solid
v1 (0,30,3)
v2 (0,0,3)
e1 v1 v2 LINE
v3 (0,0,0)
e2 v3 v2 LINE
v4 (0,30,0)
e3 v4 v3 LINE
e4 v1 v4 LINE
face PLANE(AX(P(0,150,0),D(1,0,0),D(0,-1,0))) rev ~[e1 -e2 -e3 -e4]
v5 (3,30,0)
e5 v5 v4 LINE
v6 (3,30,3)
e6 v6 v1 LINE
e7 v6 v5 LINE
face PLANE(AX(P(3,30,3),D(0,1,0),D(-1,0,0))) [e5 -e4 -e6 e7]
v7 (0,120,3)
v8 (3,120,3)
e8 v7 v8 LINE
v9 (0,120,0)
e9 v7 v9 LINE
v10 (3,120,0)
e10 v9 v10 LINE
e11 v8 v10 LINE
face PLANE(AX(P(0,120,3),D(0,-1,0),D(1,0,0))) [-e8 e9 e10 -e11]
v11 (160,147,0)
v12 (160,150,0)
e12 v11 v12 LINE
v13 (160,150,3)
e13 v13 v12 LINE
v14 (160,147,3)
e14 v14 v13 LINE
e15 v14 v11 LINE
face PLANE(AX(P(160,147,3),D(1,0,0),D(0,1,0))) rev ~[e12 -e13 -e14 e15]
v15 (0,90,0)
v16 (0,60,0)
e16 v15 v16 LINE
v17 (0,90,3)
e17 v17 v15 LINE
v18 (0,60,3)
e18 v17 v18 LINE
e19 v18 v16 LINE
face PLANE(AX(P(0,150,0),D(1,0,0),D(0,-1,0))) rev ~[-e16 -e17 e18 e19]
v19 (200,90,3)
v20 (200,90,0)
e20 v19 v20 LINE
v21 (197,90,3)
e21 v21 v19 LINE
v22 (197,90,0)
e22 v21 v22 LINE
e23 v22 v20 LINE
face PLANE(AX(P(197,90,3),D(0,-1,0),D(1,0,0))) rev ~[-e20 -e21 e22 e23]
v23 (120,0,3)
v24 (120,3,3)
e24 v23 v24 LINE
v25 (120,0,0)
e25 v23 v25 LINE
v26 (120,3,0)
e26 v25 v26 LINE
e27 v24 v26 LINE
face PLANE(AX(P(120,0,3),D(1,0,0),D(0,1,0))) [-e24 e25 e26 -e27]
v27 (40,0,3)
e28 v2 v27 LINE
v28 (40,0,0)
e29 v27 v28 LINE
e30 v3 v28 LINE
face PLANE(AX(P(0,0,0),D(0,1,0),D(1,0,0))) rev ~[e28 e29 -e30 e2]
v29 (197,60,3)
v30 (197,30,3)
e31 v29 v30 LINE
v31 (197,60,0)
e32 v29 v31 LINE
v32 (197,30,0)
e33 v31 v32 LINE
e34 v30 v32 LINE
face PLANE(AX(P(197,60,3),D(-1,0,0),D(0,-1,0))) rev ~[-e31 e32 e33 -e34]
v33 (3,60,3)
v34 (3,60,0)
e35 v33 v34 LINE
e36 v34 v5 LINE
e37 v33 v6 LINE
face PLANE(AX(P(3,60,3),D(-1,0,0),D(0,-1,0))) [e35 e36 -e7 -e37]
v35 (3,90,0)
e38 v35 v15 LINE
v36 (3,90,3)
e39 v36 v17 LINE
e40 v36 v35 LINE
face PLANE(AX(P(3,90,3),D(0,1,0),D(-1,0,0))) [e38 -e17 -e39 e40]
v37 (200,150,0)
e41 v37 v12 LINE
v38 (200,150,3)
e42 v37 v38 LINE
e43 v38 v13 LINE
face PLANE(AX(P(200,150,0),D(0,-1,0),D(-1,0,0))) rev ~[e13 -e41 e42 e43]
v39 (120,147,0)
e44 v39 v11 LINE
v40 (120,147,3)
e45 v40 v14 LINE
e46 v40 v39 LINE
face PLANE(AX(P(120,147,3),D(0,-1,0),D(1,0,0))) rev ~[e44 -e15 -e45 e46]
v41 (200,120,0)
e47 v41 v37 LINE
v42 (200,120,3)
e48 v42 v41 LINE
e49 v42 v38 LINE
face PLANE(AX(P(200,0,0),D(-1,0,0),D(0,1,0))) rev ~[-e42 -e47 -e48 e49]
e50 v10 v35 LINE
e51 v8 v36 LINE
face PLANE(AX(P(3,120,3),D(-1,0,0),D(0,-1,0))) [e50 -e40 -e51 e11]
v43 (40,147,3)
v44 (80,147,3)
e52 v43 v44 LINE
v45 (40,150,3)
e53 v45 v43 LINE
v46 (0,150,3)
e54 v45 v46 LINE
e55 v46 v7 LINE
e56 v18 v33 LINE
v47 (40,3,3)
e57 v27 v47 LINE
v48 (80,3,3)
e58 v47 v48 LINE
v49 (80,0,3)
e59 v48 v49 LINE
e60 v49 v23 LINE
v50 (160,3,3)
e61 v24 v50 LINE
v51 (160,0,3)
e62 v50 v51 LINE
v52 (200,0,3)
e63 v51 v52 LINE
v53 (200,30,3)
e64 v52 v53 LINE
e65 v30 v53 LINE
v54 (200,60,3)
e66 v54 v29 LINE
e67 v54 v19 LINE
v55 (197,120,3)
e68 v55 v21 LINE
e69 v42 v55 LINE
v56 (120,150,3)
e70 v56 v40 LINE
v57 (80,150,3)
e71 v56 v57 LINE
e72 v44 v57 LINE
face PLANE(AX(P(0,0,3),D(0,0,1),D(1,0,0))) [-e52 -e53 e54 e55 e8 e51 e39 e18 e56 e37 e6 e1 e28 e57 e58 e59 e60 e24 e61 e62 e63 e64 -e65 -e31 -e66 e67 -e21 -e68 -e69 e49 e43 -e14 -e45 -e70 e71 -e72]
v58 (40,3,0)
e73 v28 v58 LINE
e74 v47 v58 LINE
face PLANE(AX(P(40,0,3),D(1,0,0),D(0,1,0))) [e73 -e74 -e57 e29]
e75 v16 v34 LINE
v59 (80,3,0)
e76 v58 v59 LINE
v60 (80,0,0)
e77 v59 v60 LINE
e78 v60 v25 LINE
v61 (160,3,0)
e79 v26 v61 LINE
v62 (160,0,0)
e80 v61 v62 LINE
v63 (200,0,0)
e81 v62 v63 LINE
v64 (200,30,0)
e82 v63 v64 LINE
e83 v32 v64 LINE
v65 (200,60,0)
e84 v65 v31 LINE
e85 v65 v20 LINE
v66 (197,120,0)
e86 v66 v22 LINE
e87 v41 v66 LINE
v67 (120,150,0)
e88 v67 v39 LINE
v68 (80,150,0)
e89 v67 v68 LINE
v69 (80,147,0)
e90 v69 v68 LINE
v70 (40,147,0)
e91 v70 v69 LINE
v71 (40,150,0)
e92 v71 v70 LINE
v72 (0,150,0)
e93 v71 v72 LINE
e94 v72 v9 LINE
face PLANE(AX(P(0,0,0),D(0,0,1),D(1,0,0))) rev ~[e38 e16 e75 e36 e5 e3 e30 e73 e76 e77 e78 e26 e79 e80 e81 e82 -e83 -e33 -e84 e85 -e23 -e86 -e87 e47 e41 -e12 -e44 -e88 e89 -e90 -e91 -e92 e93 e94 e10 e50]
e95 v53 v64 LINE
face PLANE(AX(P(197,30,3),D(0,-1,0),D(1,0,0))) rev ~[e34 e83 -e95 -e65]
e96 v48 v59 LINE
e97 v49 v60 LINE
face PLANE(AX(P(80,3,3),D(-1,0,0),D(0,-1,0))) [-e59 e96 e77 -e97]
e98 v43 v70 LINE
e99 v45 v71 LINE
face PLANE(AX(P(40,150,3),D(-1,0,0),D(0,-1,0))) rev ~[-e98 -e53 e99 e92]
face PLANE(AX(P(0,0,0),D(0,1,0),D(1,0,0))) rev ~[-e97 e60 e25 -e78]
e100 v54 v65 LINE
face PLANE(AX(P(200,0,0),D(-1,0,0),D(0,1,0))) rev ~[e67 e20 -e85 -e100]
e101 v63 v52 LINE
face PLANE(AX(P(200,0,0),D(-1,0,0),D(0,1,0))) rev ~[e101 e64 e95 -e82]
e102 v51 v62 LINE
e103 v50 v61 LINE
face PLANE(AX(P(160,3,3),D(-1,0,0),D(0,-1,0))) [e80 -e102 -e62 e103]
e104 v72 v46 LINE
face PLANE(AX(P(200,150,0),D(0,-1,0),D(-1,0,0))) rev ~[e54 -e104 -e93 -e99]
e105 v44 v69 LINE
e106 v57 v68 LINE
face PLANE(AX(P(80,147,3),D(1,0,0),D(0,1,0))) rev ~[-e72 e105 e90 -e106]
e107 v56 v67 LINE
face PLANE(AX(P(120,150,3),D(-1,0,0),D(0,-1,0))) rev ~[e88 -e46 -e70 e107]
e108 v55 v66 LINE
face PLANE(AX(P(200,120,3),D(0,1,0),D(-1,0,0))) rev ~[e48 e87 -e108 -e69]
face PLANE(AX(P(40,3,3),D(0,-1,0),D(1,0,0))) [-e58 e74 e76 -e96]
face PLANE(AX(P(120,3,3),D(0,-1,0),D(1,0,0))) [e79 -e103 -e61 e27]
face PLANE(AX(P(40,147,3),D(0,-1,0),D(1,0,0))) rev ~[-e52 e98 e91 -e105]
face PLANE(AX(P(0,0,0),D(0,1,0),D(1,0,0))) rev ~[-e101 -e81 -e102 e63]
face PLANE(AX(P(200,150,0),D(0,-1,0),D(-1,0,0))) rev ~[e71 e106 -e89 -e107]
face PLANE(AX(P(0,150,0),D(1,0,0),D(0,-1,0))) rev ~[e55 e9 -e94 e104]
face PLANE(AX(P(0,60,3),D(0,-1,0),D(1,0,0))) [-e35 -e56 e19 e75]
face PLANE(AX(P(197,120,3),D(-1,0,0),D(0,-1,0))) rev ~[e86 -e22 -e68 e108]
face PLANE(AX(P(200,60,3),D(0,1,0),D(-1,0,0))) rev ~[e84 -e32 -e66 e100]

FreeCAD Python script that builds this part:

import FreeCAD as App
import Part
import Sketcher


def add_polygon(sketch, points):
    """Adds a closed chain of lines whose ends are joined by coincident constraints."""
    first, n = sketch.GeometryCount, len(points)
    for a, b in zip(points, points[1:] + points[:1]):
        sketch.addGeometry(Part.LineSegment(App.Vector(*a, 0), App.Vector(*b, 0)), False)
    for i in range(n):
        sketch.addConstraint(Sketcher.Constraint("Coincident", first + i, 2, first + (i + 1) % n, 1))

doc = App.newDocument("Part")
body = doc.addObject("PartDesign::Body", "Body")

# Sketch on XY plane
sketch1 = body.newObject("Sketcher::SketchObject", "Sketch")
sketch1.AttachmentSupport = (doc.getObject("XY_Plane"), [""])
sketch1.MapMode = "FlatFace"
add_polygon(sketch1, [(0, 150), (0, 0), (200, 0), (200, 150)])  # lines 0-3
sketch1.addConstraint([
    Sketcher.Constraint("Vertical", 0),
    Sketcher.Constraint("Horizontal", 1),
    Sketcher.Constraint("Vertical", 2),
    Sketcher.Constraint("Horizontal", 3),
    Sketcher.Constraint("Coincident", 0, 2, -1, 1),
    Sketcher.Constraint("DistanceX", 1, 1, 1, 2, 200.0),
    Sketcher.Constraint("DistanceY", 0, 2, 0, 1, 150.0),
])
pad1 = body.newObject("PartDesign::Pad", "Pad")
pad1.Profile = sketch1
pad1.Length = 3

# Sketch on XY plane
sketch2 = body.newObject("Sketcher::SketchObject", "Sketch001")
sketch2.AttachmentSupport = (doc.getObject("XY_Plane"), [""])
sketch2.MapMode = "FlatFace"
sketch2.AttachmentOffset = App.Placement(App.Vector(0, 0, 3), App.Rotation())
add_polygon(sketch2, [(40, 3), (40, 0), (80, 0), (80, 3)])  # lines 0-3
add_polygon(sketch2, [(0, 60), (0, 30), (3, 30), (3, 60)])  # lines 4-7
add_polygon(sketch2, [(120, 3), (120, 0), (160, 0), (160, 3)])  # lines 8-11
add_polygon(sketch2, [(0, 120), (0, 90), (3, 90), (3, 120)])  # lines 12-15
add_polygon(sketch2, [(200, 30), (200, 60), (197, 60), (197, 30)])  # lines 16-19
add_polygon(sketch2, [(197, 90), (200, 90), (200, 120), (197, 120)])  # lines 20-23
add_polygon(sketch2, [(160, 150), (120, 150), (120, 147), (160, 147)])  # lines 24-27
add_polygon(sketch2, [(80, 147), (80, 150), (40, 150), (40, 147)])  # lines 28-31
sketch2.addConstraint([
    Sketcher.Constraint("Vertical", 0),
    Sketcher.Constraint("Horizontal", 1),
    Sketcher.Constraint("Vertical", 2),
    Sketcher.Constraint("Horizontal", 3),
    Sketcher.Constraint("Vertical", 4),
    Sketcher.Constraint("Horizontal", 5),
    Sketcher.Constraint("Vertical", 6),
    Sketcher.Constraint("Horizontal", 7),
    Sketcher.Constraint("Vertical", 8),
    Sketcher.Constraint("Horizontal", 9),
    Sketcher.Constraint("Vertical", 10),
    Sketcher.Constraint("Horizontal", 11),
    Sketcher.Constraint("Vertical", 12),
    Sketcher.Constraint("Horizontal", 13),
    Sketcher.Constraint("Vertical", 14),
    Sketcher.Constraint("Horizontal", 15),
    Sketcher.Constraint("Vertical", 16),
    Sketcher.Constraint("Horizontal", 17),
    Sketcher.Constraint("Vertical", 18),
    Sketcher.Constraint("Horizontal", 19),
    Sketcher.Constraint("Horizontal", 20),
    Sketcher.Constraint("Vertical", 21),
    Sketcher.Constraint("Horizontal", 22),
    Sketcher.Constraint("Vertical", 23),
    Sketcher.Constraint("Horizontal", 24),
    Sketcher.Constraint("Vertical", 25),
    Sketcher.Constraint("Horizontal", 26),
    Sketcher.Constraint("Vertical", 27),
    Sketcher.Constraint("Vertical", 28),
    Sketcher.Constraint("Horizontal", 29),
    Sketcher.Constraint("Vertical", 30),
    Sketcher.Constraint("Horizontal", 31),
    Sketcher.Constraint("PointOnObject", 0, 2, -1),
    Sketcher.Constraint("PointOnObject", 4, 2, -2),
    Sketcher.Constraint("PointOnObject", 8, 2, -1),
    Sketcher.Constraint("PointOnObject", 12, 2, -2),
    Sketcher.Constraint("Horizontal", 3, 2, 10, 2),
    Sketcher.Constraint("Horizontal", 7, 2, 16, 2),
    Sketcher.Constraint("Horizontal", 5, 2, 18, 2),
    Sketcher.Constraint("Horizontal", 13, 2, 20, 2),
    Sketcher.Constraint("Horizontal", 15, 2, 21, 2),
    Sketcher.Constraint("Horizontal", 27, 2, 28, 2),
    Sketcher.Constraint("Horizontal", 26, 2, 30, 2),
    Sketcher.Constraint("Vertical", 6, 2, 13, 2),
    Sketcher.Constraint("Vertical", 19, 2, 20, 2),
    Sketcher.Constraint("Vertical", 18, 2, 22, 2),
    Sketcher.Constraint("Vertical", 11, 2, 24, 2),
    Sketcher.Constraint("Vertical", 10, 2, 26, 2),
    Sketcher.Constraint("Vertical", 2, 2, 28, 2),
    Sketcher.Constraint("Vertical", 3, 2, 29, 2),
    Sketcher.Constraint("Equal", 3, 9),
    Sketcher.Constraint("Equal", 15, 17),
    Sketcher.Constraint("Equal", 22, 0),
    Sketcher.Constraint("Equal", 6, 12),
    Sketcher.Constraint("Equal", 10, 25),
    Sketcher.Constraint("DistanceX", 1, 1, 1, 2, 40.0),
    Sketcher.Constraint("DistanceX", 5, 1, 5, 2, 3.0),
    Sketcher.Constraint("DistanceY", 4, 2, 4, 1, 30.0),
    Sketcher.Constraint("DistanceX", -1, 1, 0, 2, 40.0),
    Sketcher.Constraint("DistanceY", -1, 1, 4, 2, 30.0),
    Sketcher.Constraint("DistanceX", 1, 2, 8, 2, 40.0),
    Sketcher.Constraint("DistanceY", 7, 2, 12, 2, 30.0),
    Sketcher.Constraint("DistanceX", 10, 2, 16, 2, 40.0),
    Sketcher.Constraint("DistanceY", 22, 2, 24, 2, 30.0),
])
pocket1 = body.newObject("PartDesign::Pocket", "Pocket")
pocket1.Profile = sketch2
pocket1.Length = 3

doc.recompute()
